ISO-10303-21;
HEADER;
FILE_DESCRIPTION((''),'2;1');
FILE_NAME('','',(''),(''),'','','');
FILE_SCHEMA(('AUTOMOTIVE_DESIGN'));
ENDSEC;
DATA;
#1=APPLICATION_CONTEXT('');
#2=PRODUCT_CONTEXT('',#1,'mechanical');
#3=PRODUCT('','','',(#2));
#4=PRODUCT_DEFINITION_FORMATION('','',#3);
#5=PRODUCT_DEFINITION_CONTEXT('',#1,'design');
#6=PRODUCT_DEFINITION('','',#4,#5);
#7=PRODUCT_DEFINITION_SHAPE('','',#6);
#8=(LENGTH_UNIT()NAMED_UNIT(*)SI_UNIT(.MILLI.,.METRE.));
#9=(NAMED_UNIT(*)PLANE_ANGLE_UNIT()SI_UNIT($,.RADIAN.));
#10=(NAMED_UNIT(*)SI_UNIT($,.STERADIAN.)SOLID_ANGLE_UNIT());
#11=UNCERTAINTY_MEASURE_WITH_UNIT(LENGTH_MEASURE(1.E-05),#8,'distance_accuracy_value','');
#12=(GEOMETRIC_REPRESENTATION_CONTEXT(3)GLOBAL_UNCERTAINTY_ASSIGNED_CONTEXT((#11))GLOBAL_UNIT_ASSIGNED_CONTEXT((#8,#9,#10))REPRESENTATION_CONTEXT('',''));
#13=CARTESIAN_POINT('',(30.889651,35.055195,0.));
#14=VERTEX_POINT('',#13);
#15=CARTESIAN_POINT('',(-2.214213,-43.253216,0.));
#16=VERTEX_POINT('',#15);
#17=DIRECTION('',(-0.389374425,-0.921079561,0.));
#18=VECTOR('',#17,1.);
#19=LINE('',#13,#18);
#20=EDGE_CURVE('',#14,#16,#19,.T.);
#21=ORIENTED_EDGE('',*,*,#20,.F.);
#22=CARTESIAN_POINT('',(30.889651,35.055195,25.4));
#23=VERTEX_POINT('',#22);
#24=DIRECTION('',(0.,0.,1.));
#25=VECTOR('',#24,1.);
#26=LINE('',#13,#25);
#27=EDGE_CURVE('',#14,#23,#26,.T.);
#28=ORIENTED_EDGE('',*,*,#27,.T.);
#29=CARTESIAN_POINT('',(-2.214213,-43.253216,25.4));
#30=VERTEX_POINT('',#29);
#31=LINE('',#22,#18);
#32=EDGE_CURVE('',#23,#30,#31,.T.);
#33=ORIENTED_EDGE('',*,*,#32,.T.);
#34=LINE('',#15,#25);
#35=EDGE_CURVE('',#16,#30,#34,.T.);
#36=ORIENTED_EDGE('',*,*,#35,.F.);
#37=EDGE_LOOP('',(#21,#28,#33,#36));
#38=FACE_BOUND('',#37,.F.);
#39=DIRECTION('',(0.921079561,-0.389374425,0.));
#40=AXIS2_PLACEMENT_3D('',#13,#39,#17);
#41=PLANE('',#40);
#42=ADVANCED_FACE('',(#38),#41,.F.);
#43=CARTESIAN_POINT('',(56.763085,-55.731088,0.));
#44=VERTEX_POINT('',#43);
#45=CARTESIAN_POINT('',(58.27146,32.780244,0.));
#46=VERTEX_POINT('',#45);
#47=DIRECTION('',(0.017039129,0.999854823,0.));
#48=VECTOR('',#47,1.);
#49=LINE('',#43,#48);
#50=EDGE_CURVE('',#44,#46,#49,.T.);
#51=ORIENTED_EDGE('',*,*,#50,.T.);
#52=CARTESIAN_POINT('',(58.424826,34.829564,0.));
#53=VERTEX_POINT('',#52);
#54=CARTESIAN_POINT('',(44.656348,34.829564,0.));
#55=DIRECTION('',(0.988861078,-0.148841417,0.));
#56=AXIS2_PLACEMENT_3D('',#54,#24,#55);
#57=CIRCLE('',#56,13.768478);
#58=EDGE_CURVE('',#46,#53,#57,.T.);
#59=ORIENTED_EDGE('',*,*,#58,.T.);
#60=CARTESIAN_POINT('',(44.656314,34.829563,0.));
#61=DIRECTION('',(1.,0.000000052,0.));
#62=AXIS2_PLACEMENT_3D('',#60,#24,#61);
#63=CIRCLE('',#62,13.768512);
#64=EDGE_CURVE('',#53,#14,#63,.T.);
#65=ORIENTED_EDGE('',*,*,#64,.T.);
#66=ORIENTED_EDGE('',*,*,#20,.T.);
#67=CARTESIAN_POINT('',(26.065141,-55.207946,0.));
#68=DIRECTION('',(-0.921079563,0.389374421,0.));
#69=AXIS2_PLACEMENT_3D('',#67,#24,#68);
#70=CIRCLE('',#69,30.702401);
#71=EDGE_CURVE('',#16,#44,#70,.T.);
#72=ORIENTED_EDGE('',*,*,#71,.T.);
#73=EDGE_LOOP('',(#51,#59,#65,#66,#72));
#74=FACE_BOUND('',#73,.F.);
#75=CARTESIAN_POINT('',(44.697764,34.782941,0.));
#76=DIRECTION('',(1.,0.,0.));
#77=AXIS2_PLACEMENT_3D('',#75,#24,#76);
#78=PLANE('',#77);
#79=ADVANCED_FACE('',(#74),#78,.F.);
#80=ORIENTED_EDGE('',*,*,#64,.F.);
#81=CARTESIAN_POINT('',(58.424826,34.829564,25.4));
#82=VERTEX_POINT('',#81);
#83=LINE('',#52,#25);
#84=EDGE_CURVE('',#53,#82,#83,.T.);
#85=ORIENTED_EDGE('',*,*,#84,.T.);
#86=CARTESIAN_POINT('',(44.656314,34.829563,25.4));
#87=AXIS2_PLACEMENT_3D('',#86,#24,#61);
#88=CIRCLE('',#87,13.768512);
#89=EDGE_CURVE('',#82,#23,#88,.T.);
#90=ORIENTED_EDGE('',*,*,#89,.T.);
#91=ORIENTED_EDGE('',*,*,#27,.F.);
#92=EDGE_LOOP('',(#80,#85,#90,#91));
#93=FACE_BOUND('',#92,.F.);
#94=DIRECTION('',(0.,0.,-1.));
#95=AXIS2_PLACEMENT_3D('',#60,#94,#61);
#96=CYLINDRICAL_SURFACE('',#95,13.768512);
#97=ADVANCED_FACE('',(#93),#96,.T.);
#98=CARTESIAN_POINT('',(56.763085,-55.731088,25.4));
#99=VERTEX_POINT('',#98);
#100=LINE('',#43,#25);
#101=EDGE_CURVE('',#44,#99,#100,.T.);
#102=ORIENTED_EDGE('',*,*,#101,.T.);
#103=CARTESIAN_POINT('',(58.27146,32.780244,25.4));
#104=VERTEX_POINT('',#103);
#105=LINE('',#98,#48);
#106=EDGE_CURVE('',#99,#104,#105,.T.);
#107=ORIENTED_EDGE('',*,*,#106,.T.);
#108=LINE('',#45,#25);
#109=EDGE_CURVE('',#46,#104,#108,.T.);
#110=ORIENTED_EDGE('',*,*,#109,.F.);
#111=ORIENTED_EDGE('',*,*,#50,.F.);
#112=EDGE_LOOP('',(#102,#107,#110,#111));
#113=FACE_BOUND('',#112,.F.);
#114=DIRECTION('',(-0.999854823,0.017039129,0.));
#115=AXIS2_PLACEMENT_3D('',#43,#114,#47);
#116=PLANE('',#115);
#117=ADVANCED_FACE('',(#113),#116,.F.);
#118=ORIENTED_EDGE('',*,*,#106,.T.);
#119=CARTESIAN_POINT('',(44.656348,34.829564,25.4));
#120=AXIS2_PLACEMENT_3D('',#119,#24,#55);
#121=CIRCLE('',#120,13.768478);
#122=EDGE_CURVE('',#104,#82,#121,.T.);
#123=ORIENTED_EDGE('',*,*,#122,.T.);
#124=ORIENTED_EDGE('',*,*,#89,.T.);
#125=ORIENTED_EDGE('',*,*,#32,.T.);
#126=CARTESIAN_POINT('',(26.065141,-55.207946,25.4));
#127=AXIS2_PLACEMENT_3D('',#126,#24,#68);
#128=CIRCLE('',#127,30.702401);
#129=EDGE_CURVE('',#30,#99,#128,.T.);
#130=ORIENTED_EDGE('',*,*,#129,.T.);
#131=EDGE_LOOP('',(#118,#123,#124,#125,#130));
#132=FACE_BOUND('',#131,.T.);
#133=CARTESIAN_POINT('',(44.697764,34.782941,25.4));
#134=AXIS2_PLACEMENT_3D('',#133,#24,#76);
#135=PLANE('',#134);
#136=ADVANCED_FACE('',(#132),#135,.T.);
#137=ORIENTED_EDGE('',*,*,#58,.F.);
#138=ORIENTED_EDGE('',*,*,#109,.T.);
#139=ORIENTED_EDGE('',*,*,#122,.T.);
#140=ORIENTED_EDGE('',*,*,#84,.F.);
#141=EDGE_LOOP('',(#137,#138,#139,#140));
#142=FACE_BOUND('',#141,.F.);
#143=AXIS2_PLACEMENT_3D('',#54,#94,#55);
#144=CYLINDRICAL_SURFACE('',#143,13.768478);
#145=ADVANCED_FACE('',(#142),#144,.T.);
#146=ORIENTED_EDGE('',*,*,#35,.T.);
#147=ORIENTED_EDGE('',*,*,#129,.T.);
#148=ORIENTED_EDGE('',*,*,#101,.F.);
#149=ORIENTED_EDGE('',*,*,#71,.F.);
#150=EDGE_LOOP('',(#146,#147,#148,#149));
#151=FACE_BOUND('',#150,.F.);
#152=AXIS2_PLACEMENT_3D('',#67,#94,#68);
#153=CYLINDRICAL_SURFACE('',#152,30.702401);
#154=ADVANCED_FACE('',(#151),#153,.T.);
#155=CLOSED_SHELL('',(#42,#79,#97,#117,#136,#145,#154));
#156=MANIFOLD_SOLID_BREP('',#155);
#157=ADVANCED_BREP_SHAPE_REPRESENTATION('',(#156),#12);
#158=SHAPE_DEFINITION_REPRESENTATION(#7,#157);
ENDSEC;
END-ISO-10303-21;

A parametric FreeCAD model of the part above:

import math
import FreeCAD as App
import Part
import Sketcher

V = App.Vector
Q = App.Units.Quantity

doc = App.newDocument("Part")
body = doc.addObject("PartDesign::Body", "Body")

# Sketch on XY plane
sketch1 = body.newObject("Sketcher::SketchObject", "Sketch")
sketch1.AttachmentSupport = (doc.getObject("XY_Plane"), [""])
sketch1.MapMode = "FlatFace"
sketch1.addGeometry([
    Part.ArcOfCircle(Part.Circle(V(44.7, 34.8, 0), V(0, 0, 1), 13.8), math.radians(-8.56), math.radians(0)),  # 0
    Part.ArcOfCircle(Part.Circle(V(44.7, 34.8, 0), V(0, 0, 1), 13.8), math.radians(0), math.radians(179)),  # 1
    Part.LineSegment(V(30.9, 35.1, 0), V(-2.2, -43.3, 0)),  # 2
    Part.ArcOfCircle(Part.Circle(V(26.1, -55.2, 0), V(0, 0, 1), 30.7), math.radians(157), math.radians(359)),  # 3
    Part.LineSegment(V(56.8, -55.7, 0), V(58.3, 32.8, 0)),  # 4
], False)
sketch1.addConstraint([
    Sketcher.Constraint("Tangent", 0, 2, 1, 1),
    Sketcher.Constraint("Coincident", 1, 2, 2, 1),
    Sketcher.Constraint("Tangent", 2, 2, 3, 1),
    Sketcher.Constraint("Tangent", 3, 2, 4, 1),
    Sketcher.Constraint("Coincident", 4, 2, 0, 1),
    Sketcher.Constraint("Horizontal", 1, 3, 0, 2),
    Sketcher.Constraint("Radius", 3, 30.702401),
    Sketcher.Constraint("Radius", 0, 13.768478),
    Sketcher.Constraint("Radius", 1, 13.768512),
    Sketcher.Constraint("DistanceX", -1, 1, 3, 3, 26.065141),
    Sketcher.Constraint("DistanceX", -1, 1, 1, 2, 30.889651),
    Sketcher.Constraint("DistanceX", -1, 1, 4, 2, 58.27146),
    Sketcher.Constraint("DistanceY", 3, 3, 1, 3, 90.037509),
    Sketcher.Constraint("DistanceY", 1, 3, 1, 2, 0.225632),
    Sketcher.Constraint("DistanceY", -1, 1, 0, 3, 34.829564),
])
pad1 = body.newObject("PartDesign::Pad", "Pad")
pad1.Profile = sketch1
pad1.Length = Q("1 in")

doc.recompute()
